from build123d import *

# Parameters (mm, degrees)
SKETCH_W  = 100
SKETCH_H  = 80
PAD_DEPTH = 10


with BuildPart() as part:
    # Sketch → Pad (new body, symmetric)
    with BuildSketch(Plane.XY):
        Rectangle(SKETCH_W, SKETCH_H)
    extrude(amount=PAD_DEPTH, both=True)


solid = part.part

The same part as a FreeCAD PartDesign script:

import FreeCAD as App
import Part
import Sketcher

V = App.Vector
Q = App.Units.Quantity

doc = App.newDocument("Part")
body = doc.addObject("PartDesign::Body", "Body")

# Sketch on XY plane
sketch1 = body.newObject("Sketcher::SketchObject", "Sketch")
sketch1.AttachmentSupport = (doc.getObject("XY_Plane"), [""])
sketch1.MapMode = "FlatFace"
sketch1.addGeometry([
    Part.LineSegment(V(-50, 40, 0), V(-50, -40, 0)),
    Part.LineSegment(V(-50, -40, 0), V(50, -40, 0)),
    Part.LineSegment(V(50, -40, 0), V(50, 40, 0)),
    Part.LineSegment(V(50, 40, 0), V(-50, 40, 0)),
], False)
sketch1.addConstraint([
    Sketcher.Constraint("Coincident", 0, 2, 1, 1),
    Sketcher.Constraint("Coincident", 1, 2, 2, 1),
    Sketcher.Constraint("Coincident", 2, 2, 3, 1),
    Sketcher.Constraint("Coincident", 3, 2, 0, 1),
    Sketcher.Constraint("Vertical", 0),
    Sketcher.Constraint("Horizontal", 1),
    Sketcher.Constraint("Vertical", 2),
    Sketcher.Constraint("Horizontal", 3),
    Sketcher.Constraint("Symmetric", 0, 2, 2, 2, -1, 1),
    Sketcher.Constraint("DistanceX", 1, 1, 1, 2, Q("100 mm")),
    Sketcher.Constraint("DistanceY", 0, 2, 0, 1, Q("80 mm")),
])
pad1 = body.newObject("PartDesign::Pad", "Pad")
pad1.Profile = sketch1
pad1.Length = 20
pad1.Midplane = True

doc.recompute()
